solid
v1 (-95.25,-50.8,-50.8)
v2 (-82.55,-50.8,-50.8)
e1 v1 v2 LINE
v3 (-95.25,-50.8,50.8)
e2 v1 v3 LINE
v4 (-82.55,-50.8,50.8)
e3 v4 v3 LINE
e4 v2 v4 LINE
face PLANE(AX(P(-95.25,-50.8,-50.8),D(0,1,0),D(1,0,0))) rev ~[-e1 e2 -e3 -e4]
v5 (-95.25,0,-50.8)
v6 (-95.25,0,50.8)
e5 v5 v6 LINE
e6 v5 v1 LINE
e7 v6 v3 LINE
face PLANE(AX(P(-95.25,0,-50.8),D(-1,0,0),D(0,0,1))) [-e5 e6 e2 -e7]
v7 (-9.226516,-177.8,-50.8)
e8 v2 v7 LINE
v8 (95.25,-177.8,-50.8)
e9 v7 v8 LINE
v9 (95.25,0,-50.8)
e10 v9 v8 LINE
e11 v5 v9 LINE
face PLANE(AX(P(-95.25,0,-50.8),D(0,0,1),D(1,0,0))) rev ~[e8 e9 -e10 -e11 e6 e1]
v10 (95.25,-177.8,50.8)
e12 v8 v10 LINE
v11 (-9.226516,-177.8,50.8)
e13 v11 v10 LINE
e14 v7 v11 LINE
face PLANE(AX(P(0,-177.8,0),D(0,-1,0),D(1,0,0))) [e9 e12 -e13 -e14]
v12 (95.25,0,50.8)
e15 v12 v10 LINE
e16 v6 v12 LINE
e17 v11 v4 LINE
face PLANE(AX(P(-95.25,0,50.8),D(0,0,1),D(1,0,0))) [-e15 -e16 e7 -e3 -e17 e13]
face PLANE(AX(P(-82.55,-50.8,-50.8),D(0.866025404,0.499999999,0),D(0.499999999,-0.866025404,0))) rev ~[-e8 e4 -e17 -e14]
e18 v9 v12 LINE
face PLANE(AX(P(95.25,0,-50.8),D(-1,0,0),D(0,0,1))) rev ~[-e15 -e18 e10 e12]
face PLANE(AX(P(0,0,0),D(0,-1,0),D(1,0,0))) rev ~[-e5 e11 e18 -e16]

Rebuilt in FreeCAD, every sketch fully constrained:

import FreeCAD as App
import Part
import Sketcher
from FreeCAD import Vector
Q = App.Units.Quantity


def add_polygon(sketch, points):
    """Adds a closed chain of lines whose ends are joined by coincident constraints."""
    first, n = sketch.GeometryCount, len(points)
    for a, b in zip(points, points[1:] + points[:1]):
        sketch.addGeometry(Part.LineSegment(App.Vector(*a, 0), App.Vector(*b, 0)), False)
    for i in range(n):
        sketch.addConstraint(Sketcher.Constraint("Coincident", first + i, 2, first + (i + 1) % n, 1))

doc = App.newDocument("Part")
body = doc.addObject("PartDesign::Body", "Body")

sketch1 = body.newObject("Sketcher::SketchObject", "Sketch")
sketch1.AttachmentSupport = (doc.getObject("XZ_Plane"), [""])
sketch1.MapMode = "FlatFace"
add_polygon(sketch1, [(-95, 51), (-95, -51), (95, -51), (95, 51)])
sketch1.addConstraint([
    Sketcher.Constraint("Vertical", 0),
    Sketcher.Constraint("Horizontal", 1),
    Sketcher.Constraint("Vertical", 2),
    Sketcher.Constraint("Horizontal", 3),
    Sketcher.Constraint("Symmetric", 0, 2, 2, 2, -1, 1),
    Sketcher.Constraint("DistanceY", 0, 2, 0, 1, Q("4 in")),
    Sketcher.Constraint("DistanceX", 1, 1, 1, 2, Q("7.5 in")),
])
pad1 = body.newObject("PartDesign::Pad", "Pad")
pad1.Profile = sketch1
pad1.Length = Q("7 in")

sketch2 = body.newObject("Sketcher::SketchObject", "Sketch001")
sketch2.AttachmentSupport = (doc.getObject("XY_Plane"), [""])
sketch2.MapMode = "FlatFace"
sketch2.AttachmentOffset = App.Placement(Vector(0, 0, -2 * 25.4), App.Rotation())
add_polygon(sketch2, [(-95, -178), (-95, -51), (-83, -51), (-9, -178)])
sketch2.addConstraint([
    Sketcher.Constraint("Vertical", 0),
    Sketcher.Constraint("Horizontal", 1),
    Sketcher.Constraint("Horizontal", 3),
    Sketcher.Constraint("DistanceY", 0, 1, 0, 2, Q("5 in")),
    Sketcher.Constraint("DistanceX", 1, 1, 1, 2, Q("0.5 in")),
    Sketcher.Constraint("DistanceY", 0, 2, -1, 1, Q("2 in")),
    Sketcher.Constraint("Angle", 2, Q("-60 deg")),
    Sketcher.Constraint("DistanceX", 0, 2, -1, 1, Q("3.75 in")),
])
pocket1 = body.newObject("PartDesign::Pocket", "Pocket")
pocket1.Profile = sketch2
pocket1.Type = "ThroughAll"
pocket1.Reversed = True

doc.recompute()
